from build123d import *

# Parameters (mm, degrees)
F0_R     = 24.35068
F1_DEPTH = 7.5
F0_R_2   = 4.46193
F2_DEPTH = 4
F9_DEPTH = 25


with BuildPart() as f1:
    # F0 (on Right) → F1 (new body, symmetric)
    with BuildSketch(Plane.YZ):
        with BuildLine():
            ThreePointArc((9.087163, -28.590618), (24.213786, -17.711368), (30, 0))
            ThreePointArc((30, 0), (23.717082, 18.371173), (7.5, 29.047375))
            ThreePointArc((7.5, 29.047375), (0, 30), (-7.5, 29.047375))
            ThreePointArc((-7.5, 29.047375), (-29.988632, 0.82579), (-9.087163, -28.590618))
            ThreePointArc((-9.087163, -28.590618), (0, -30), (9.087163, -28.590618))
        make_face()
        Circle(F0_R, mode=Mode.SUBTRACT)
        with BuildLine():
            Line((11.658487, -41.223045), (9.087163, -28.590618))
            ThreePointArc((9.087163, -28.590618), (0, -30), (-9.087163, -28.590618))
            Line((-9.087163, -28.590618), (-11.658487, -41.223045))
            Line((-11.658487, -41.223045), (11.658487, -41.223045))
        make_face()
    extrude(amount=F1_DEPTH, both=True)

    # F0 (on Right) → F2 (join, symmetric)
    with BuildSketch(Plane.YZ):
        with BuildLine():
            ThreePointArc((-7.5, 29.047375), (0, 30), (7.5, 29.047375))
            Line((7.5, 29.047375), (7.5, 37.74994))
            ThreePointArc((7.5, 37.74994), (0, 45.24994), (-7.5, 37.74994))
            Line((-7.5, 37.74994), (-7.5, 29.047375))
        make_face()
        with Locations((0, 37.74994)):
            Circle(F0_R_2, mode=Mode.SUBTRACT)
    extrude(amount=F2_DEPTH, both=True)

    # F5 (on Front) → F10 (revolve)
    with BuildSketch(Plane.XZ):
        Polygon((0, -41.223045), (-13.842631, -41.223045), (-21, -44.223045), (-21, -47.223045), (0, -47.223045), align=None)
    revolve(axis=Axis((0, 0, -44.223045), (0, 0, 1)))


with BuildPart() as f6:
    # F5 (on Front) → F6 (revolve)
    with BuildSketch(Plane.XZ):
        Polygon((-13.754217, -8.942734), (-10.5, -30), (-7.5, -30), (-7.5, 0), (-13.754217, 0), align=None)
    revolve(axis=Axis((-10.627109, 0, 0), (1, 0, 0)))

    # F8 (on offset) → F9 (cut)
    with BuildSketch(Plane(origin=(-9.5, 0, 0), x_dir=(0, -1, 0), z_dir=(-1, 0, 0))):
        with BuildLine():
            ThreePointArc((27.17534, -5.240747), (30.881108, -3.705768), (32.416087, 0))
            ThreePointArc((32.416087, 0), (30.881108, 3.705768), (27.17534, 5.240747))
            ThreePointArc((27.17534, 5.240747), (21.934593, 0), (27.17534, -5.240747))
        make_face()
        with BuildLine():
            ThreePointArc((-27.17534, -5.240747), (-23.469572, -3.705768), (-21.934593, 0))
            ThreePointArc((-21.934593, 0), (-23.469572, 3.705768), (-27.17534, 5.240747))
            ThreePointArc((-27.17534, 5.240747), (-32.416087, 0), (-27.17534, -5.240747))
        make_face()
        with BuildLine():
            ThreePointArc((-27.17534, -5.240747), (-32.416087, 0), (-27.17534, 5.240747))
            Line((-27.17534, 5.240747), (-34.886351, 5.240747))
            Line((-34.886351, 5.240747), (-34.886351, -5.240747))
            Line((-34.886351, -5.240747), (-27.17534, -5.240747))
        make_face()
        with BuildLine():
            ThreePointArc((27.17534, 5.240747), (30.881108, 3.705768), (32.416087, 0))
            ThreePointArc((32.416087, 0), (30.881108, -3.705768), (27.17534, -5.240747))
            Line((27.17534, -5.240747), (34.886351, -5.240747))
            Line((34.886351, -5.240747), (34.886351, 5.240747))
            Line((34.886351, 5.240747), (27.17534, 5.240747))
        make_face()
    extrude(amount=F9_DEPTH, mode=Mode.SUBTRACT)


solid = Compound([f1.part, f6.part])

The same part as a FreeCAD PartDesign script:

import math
import FreeCAD as App
import Part
import Sketcher
from FreeCAD import Vector


def add_polygon(sketch, points):
    """Adds a closed chain of lines whose ends are joined by coincident constraints."""
    first, n = sketch.GeometryCount, len(points)
    for a, b in zip(points, points[1:] + points[:1]):
        sketch.addGeometry(Part.LineSegment(App.Vector(*a, 0), App.Vector(*b, 0)), False)
    for i in range(n):
        sketch.addConstraint(Sketcher.Constraint("Coincident", first + i, 2, first + (i + 1) % n, 1))

doc = App.newDocument("Part")
body = doc.addObject("PartDesign::Body", "Body")

# Sketch on YZ plane
sketch1 = doc.addObject("Sketcher::SketchObject", "Sketch")
body.addObject(sketch1)
sketch1.AttachmentSupport = (doc.YZ_Plane, [""])
sketch1.MapMode = "FlatFace"
sketch1.addGeometry([
    Part.ArcOfCircle(Part.Circle(Vector(0, 0, 0), Vector(0, 0, 1), 30), math.radians(-72), math.radians(0)),  # 0
    Part.ArcOfCircle(Part.Circle(Vector(0, 0, 0), Vector(0, 0, 1), 30), math.radians(0), math.radians(76)),  # 1
    Part.ArcOfCircle(Part.Circle(Vector(0, 0, 0), Vector(0, 0, 1), 30), math.radians(76), math.radians(104)),  # 2
    Part.ArcOfCircle(Part.Circle(Vector(0, 0, 0), Vector(0, 0, 1), 30), math.radians(104), math.radians(252)),  # 3
    Part.LineSegment(Vector(-9, -29, 0), Vector(-12, -41, 0)),  # 4
    Part.LineSegment(Vector(-12, -41, 0), Vector(12, -41, 0)),  # 5
    Part.LineSegment(Vector(12, -41, 0), Vector(9, -29, 0)),  # 6
    Part.Circle(Vector(0, 0, 0), Vector(0, 0, 1), 24),  # 7
], False)
sketch1.addConstraint([
    Sketcher.Constraint("Tangent", 0, 2, 1, 1),
    Sketcher.Constraint("Tangent", 1, 2, 2, 1),
    Sketcher.Constraint("Tangent", 2, 2, 3, 1),
    Sketcher.Constraint("Coincident", 3, 2, 4, 1),
    Sketcher.Constraint("Coincident", 4, 2, 5, 1),
    Sketcher.Constraint("Coincident", 5, 2, 6, 1),
    Sketcher.Constraint("Coincident", 6, 2, 0, 1),
    Sketcher.Constraint("Horizontal", 5),
    Sketcher.Constraint("Coincident", 0, 3, -1, 1),
    Sketcher.Constraint("Coincident", 2, 3, -1, 1),
    Sketcher.Constraint("Coincident", 7, 3, -1, 1),
    Sketcher.Constraint("Equal", 1, 3),
    Sketcher.Constraint("PointOnObject", 0, 2, -1),
    Sketcher.Constraint("Horizontal", 1, 2, 2, 2),
    Sketcher.Constraint("Horizontal", 3, 2, 6, 2),
    Sketcher.Constraint("Equal", 4, 6),
    Sketcher.Constraint("Radius", 0, 29.999999),
    Sketcher.Constraint("DistanceX", 2, 2, 1, 2, 15.0),
    Sketcher.Constraint("Diameter", 7, 48.70136),
    Sketcher.Constraint("DistanceX", 5, 1, 5, 2, 23.316974),
    Sketcher.Constraint("DistanceX", 3, 2, 1, 3, 9.087162),
    Sketcher.Constraint("Distance", 4, 12.891467),
])
pad1 = doc.addObject("PartDesign::Pad", "Pad")
body.addObject(pad1)
pad1.Profile = sketch1
pad1.Length = 15
pad1.Midplane = True

# Sketch on YZ plane
sketch2 = doc.addObject("Sketcher::SketchObject", "Sketch001")
body.addObject(sketch2)
sketch2.AttachmentSupport = (doc.YZ_Plane, [""])
sketch2.MapMode = "FlatFace"
sketch2.addGeometry([
    Part.ArcOfCircle(Part.Circle(Vector(0, 0, 0), Vector(0, 0, 1), 30), math.radians(76), math.radians(104)),  # 0
    Part.LineSegment(Vector(7.5, 29, 0), Vector(7.5, 37.7, 0)),  # 1
    Part.ArcOfCircle(Part.Circle(Vector(0, 37.7, 0), Vector(0, 0, 1), 7.5), math.radians(0), math.radians(180)),  # 2
    Part.LineSegment(Vector(-7.5, 37.7, 0), Vector(-7.5, 29, 0)),  # 3
    Part.Circle(Vector(0, 37.7, 0), Vector(0, 0, 1), 4.5),  # 4
], False)
sketch2.addConstraint([
    Sketcher.Constraint("Coincident", 0, 1, 1, 1),
    Sketcher.Constraint("Tangent", 1, 2, 2, 1),
    Sketcher.Constraint("Tangent", 2, 2, 3, 1),
    Sketcher.Constraint("Coincident", 3, 2, 0, 2),
    Sketcher.Constraint("Vertical", 1),
    Sketcher.Constraint("Vertical", 3),
    Sketcher.Constraint("Coincident", 0, 3, -1, 1),
    Sketcher.Constraint("Coincident", 4, 3, 2, 3),
    Sketcher.Constraint("PointOnObject", 2, 3, -2),
    Sketcher.Constraint("Radius", 2, 7.5),
    Sketcher.Constraint("Diameter", 4, 8.92386),
    Sketcher.Constraint("Radius", 0, 29.999997),
    Sketcher.Constraint("DistanceY", 1, 1, 1, 2, 8.702565),
])
pad2 = doc.addObject("PartDesign::Pad", "Pad001")
body.addObject(pad2)
pad2.Profile = sketch2
pad2.Length = 8
pad2.Midplane = True

# Sketch on XZ plane
sketch3 = doc.addObject("Sketcher::SketchObject", "Sketch002")
body.addObject(sketch3)
sketch3.AttachmentSupport = (doc.XZ_Plane, [""])
sketch3.MapMode = "FlatFace"
add_polygon(sketch3, [(0, -41.2), (-13.8, -41.2), (-21, -44.2), (-21, -47.2), (0, -47.2)])  # lines 0-4
sketch3.addConstraint([
    Sketcher.Constraint("Horizontal", 0),
    Sketcher.Constraint("Vertical", 2),
    Sketcher.Constraint("Horizontal", 3),
    Sketcher.Constraint("Vertical", 4),
    Sketcher.Constraint("PointOnObject", 3, 2, -2),
    Sketcher.Constraint("DistanceX", 3, 1, 3, 2, 21.0),
    Sketcher.Constraint("DistanceY", 2, 2, 2, 1, 3.0),
    Sketcher.Constraint("DistanceY", 4, 1, 4, 2, 6.0),
    Sketcher.Constraint("DistanceX", 0, 2, 0, 1, 13.842631),
    Sketcher.Constraint("DistanceY", 0, 2, -1, 1, 41.223045),
])
revolution = doc.addObject("PartDesign::Revolution", "Revolution")
body.addObject(revolution)
revolution.Profile = sketch3
revolution.ReferenceAxis = (sketch3, ["V_Axis"])
revolution.Angle = 360
body2 = doc.addObject("PartDesign::Body", "Body001")

# Sketch on XZ plane
sketch4 = doc.addObject("Sketcher::SketchObject", "Sketch003")
body2.addObject(sketch4)
sketch4.AttachmentSupport = (doc.getObject("XZ_Plane001"), [""])
sketch4.MapMode = "FlatFace"
add_polygon(sketch4, [(-13.8, -8.9), (-10.5, -30), (-7.5, -30), (-7.5, 0), (-13.8, 0)])  # lines 0-4
sketch4.addConstraint([
    Sketcher.Constraint("Horizontal", 1),
    Sketcher.Constraint("Vertical", 2),
    Sketcher.Constraint("Horizontal", 3),
    Sketcher.Constraint("Vertical", 4),
    Sketcher.Constraint("PointOnObject", 2, 2, -1),
    Sketcher.Constraint("DistanceX", 1, 1, 1, 2, 3.0),
    Sketcher.Constraint("DistanceY", 2, 1, 2, 2, 30.0),
    Sketcher.Constraint("DistanceX", 0, 2, -1, 1, 10.5),
    Sketcher.Constraint("DistanceX", 3, 2, 3, 1, 6.254217),
    Sketcher.Constraint("DistanceY", 4, 2, 4, 1, 8.942734),
])
revolution2 = doc.addObject("PartDesign::Revolution", "Revolution001")
body2.addObject(revolution2)
revolution2.Profile = sketch4
revolution2.ReferenceAxis = (sketch4, ["H_Axis"])
revolution2.Angle = 360

# Sketch on YZ plane
sketch5 = doc.addObject("Sketcher::SketchObject", "Sketch004")
body2.addObject(sketch5)
sketch5.AttachmentSupport = (doc.getObject("YZ_Plane001"), [""])
sketch5.MapMode = "FlatFace"
sketch5.AttachmentOffset = App.Placement(Vector(0, 0, -9.5), App.Rotation())
sketch5.addGeometry([
    Part.ArcOfCircle(Part.Circle(Vector(-27, 0, 0), Vector(0, 0, 1), 5), math.radians(-90), math.radians(90)),  # 0
    Part.LineSegment(Vector(-27, -5, 0), Vector(-35, -5, 0)),  # 1
    Part.LineSegment(Vector(-35, -5, 0), Vector(-35, 5, 0)),  # 2
    Part.LineSegment(Vector(-35, 5, 0), Vector(-27, 5, 0)),  # 3
    Part.ArcOfCircle(Part.Circle(Vector(27, 0, 0), Vector(0, 0, 1), 5), math.radians(180), math.radians(270)),  # 4
    Part.ArcOfCircle(Part.Circle(Vector(27, 0, 0), Vector(0, 0, 1), 5), math.radians(90), math.radians(180)),  # 5
    Part.LineSegment(Vector(27, 5, 0), Vector(35, 5, 0)),  # 6
    Part.LineSegment(Vector(35, 5, 0), Vector(35, -5, 0)),  # 7
    Part.LineSegment(Vector(35, -5, 0), Vector(27, -5, 0)),  # 8
], False)
sketch5.addConstraint([
    Sketcher.Constraint("Tangent", 0, 1, 1, 1),
    Sketcher.Constraint("Coincident", 1, 2, 2, 1),
    Sketcher.Constraint("Coincident", 2, 2, 3, 1),
    Sketcher.Constraint("Tangent", 3, 2, 0, 2),
    Sketcher.Constraint("Tangent", 4, 1, 5, 2),
    Sketcher.Constraint("Tangent", 5, 1, 6, 1),
    Sketcher.Constraint("Coincident", 6, 2, 7, 1),
    Sketcher.Constraint("Coincident", 7, 2, 8, 1),
    Sketcher.Constraint("Tangent", 8, 2, 4, 2),
    Sketcher.Constraint("Horizontal", 1),
    Sketcher.Constraint("Vertical", 2),
    Sketcher.Constraint("Horizontal", 3),
    Sketcher.Constraint("Horizontal", 6),
    Sketcher.Constraint("Vertical", 7),
    Sketcher.Constraint("Horizontal", 8),
    Sketcher.Constraint("Equal", 0, 4),
    Sketcher.Constraint("Equal", 4, 5),
    Sketcher.Constraint("Symmetric", 0, 3, 4, 3, -1, 1),
    Sketcher.Constraint("Symmetric", 2, 2, 6, 2, -2),
    Sketcher.Constraint("PointOnObject", 4, 1, -1),
    Sketcher.Constraint("Radius", 0, 5.240747),
    Sketcher.Constraint("DistanceX", 1, 2, 1, 1, 7.711011),
    Sketcher.Constraint("DistanceX", 0, 3, -1, 1, 27.17534),
])
pocket1 = doc.addObject("PartDesign::Pocket", "Pocket")
body2.addObject(pocket1)
pocket1.Profile = sketch5
pocket1.Length = 25

doc.recompute()
